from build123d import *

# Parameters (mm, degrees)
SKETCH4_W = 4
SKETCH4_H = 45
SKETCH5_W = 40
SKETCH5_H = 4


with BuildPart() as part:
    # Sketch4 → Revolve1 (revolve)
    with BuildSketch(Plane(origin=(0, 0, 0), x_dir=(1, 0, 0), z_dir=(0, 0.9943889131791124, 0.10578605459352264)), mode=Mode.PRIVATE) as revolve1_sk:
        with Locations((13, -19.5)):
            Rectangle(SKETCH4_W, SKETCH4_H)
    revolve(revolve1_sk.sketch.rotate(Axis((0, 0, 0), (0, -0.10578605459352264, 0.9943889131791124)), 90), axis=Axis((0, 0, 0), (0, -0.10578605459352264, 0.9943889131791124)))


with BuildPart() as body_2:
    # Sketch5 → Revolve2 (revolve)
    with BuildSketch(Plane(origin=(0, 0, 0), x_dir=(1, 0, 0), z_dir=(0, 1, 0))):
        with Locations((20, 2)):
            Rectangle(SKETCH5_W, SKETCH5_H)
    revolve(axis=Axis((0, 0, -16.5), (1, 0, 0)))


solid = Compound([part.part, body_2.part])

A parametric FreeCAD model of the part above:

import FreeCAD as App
import Part
import Sketcher
from FreeCAD import Vector
Q = App.Units.Quantity


def add_polygon(sketch, points):
    """Adds a closed chain of lines whose ends are joined by coincident constraints."""
    first, n = sketch.GeometryCount, len(points)
    for a, b in zip(points, points[1:] + points[:1]):
        sketch.addGeometry(Part.LineSegment(App.Vector(*a, 0), App.Vector(*b, 0)), False)
    for i in range(n):
        sketch.addConstraint(Sketcher.Constraint("Coincident", first + i, 2, first + (i + 1) % n, 1))

doc = App.newDocument("Part")
body = doc.addObject("PartDesign::Body", "Body")

# Sketch on an angled plane
sketch1 = doc.addObject("Sketcher::SketchObject", "Sketch")
body.addObject(sketch1)
sketch1.Placement = App.Placement(Vector(0, 0, 0), App.Rotation(Vector(1, 0, 0), Vector(0, 0.105786055, -0.994388913), Vector(0, 0.994388913, 0.105786055), "ZXY"))
add_polygon(sketch1, [(11, 3), (11, -42), (15, -42), (15, 3)])  # lines 0-3
sketch1.addConstraint(Sketcher.Constraint("Vertical", 0))
sketch1.addConstraint(Sketcher.Constraint("Horizontal", 1))
sketch1.addConstraint(Sketcher.Constraint("Vertical", 2))
sketch1.addConstraint(Sketcher.Constraint("Horizontal", 3))
sketch1.addConstraint(Sketcher.Constraint("DistanceX", 1, 1, 1, 2, Q("4 mm")))
sketch1.addConstraint(Sketcher.Constraint("DistanceY", 0, 2, 0, 1, Q("45 mm")))
sketch1.addConstraint(Sketcher.Constraint("DistanceX", -1, 1, 0, 2, Q("11 mm")))
sketch1.addConstraint(Sketcher.Constraint("DistanceY", 0, 2, -1, 1, Q("42 mm")))
revolution = doc.addObject("PartDesign::Revolution", "Revolution")
body.addObject(revolution)
revolution.Profile = sketch1
revolution.ReferenceAxis = (sketch1, ["V_Axis"])
revolution.Angle = 360
body2 = doc.addObject("PartDesign::Body", "Body001")

# Sketch on XZ plane
sketch2 = doc.addObject("Sketcher::SketchObject", "Sketch001")
body2.addObject(sketch2)
sketch2.AttachmentSupport = (doc.getObject("XZ_Plane001"), [""])
sketch2.MapMode = "FlatFace"
add_polygon(sketch2, [(0, -4), (0, 0), (40, 0), (40, -4)])  # lines 0-3
sketch2.addGeometry(Part.LineSegment(Vector(0, -16.5, 0), Vector(40, -16.5, 0)), True)  # axis
sketch2.addConstraint(Sketcher.Constraint("Vertical", 0))
sketch2.addConstraint(Sketcher.Constraint("Horizontal", 1))
sketch2.addConstraint(Sketcher.Constraint("Vertical", 2))
sketch2.addConstraint(Sketcher.Constraint("Horizontal", 3))
sketch2.addConstraint(Sketcher.Constraint("Horizontal", 4))
sketch2.addConstraint(Sketcher.Constraint("Coincident", 0, 2, -1, 1))
sketch2.addConstraint(Sketcher.Constraint("PointOnObject", 4, 1, -2))
sketch2.addConstraint(Sketcher.Constraint("Vertical", 2, 2, 4, 2))
sketch2.addConstraint(Sketcher.Constraint("DistanceX", 1, 1, 1, 2, Q("40 mm")))
sketch2.addConstraint(Sketcher.Constraint("DistanceY", 0, 1, 0, 2, Q("4 mm")))
sketch2.addConstraint(Sketcher.Constraint("DistanceY", 4, 1, -1, 1, Q("16.5 mm")))
revolution2 = doc.addObject("PartDesign::Revolution", "Revolution001")
body2.addObject(revolution2)
revolution2.Profile = sketch2
revolution2.ReferenceAxis = (sketch2, ["Axis0"])
revolution2.Angle = 360

doc.recompute()
